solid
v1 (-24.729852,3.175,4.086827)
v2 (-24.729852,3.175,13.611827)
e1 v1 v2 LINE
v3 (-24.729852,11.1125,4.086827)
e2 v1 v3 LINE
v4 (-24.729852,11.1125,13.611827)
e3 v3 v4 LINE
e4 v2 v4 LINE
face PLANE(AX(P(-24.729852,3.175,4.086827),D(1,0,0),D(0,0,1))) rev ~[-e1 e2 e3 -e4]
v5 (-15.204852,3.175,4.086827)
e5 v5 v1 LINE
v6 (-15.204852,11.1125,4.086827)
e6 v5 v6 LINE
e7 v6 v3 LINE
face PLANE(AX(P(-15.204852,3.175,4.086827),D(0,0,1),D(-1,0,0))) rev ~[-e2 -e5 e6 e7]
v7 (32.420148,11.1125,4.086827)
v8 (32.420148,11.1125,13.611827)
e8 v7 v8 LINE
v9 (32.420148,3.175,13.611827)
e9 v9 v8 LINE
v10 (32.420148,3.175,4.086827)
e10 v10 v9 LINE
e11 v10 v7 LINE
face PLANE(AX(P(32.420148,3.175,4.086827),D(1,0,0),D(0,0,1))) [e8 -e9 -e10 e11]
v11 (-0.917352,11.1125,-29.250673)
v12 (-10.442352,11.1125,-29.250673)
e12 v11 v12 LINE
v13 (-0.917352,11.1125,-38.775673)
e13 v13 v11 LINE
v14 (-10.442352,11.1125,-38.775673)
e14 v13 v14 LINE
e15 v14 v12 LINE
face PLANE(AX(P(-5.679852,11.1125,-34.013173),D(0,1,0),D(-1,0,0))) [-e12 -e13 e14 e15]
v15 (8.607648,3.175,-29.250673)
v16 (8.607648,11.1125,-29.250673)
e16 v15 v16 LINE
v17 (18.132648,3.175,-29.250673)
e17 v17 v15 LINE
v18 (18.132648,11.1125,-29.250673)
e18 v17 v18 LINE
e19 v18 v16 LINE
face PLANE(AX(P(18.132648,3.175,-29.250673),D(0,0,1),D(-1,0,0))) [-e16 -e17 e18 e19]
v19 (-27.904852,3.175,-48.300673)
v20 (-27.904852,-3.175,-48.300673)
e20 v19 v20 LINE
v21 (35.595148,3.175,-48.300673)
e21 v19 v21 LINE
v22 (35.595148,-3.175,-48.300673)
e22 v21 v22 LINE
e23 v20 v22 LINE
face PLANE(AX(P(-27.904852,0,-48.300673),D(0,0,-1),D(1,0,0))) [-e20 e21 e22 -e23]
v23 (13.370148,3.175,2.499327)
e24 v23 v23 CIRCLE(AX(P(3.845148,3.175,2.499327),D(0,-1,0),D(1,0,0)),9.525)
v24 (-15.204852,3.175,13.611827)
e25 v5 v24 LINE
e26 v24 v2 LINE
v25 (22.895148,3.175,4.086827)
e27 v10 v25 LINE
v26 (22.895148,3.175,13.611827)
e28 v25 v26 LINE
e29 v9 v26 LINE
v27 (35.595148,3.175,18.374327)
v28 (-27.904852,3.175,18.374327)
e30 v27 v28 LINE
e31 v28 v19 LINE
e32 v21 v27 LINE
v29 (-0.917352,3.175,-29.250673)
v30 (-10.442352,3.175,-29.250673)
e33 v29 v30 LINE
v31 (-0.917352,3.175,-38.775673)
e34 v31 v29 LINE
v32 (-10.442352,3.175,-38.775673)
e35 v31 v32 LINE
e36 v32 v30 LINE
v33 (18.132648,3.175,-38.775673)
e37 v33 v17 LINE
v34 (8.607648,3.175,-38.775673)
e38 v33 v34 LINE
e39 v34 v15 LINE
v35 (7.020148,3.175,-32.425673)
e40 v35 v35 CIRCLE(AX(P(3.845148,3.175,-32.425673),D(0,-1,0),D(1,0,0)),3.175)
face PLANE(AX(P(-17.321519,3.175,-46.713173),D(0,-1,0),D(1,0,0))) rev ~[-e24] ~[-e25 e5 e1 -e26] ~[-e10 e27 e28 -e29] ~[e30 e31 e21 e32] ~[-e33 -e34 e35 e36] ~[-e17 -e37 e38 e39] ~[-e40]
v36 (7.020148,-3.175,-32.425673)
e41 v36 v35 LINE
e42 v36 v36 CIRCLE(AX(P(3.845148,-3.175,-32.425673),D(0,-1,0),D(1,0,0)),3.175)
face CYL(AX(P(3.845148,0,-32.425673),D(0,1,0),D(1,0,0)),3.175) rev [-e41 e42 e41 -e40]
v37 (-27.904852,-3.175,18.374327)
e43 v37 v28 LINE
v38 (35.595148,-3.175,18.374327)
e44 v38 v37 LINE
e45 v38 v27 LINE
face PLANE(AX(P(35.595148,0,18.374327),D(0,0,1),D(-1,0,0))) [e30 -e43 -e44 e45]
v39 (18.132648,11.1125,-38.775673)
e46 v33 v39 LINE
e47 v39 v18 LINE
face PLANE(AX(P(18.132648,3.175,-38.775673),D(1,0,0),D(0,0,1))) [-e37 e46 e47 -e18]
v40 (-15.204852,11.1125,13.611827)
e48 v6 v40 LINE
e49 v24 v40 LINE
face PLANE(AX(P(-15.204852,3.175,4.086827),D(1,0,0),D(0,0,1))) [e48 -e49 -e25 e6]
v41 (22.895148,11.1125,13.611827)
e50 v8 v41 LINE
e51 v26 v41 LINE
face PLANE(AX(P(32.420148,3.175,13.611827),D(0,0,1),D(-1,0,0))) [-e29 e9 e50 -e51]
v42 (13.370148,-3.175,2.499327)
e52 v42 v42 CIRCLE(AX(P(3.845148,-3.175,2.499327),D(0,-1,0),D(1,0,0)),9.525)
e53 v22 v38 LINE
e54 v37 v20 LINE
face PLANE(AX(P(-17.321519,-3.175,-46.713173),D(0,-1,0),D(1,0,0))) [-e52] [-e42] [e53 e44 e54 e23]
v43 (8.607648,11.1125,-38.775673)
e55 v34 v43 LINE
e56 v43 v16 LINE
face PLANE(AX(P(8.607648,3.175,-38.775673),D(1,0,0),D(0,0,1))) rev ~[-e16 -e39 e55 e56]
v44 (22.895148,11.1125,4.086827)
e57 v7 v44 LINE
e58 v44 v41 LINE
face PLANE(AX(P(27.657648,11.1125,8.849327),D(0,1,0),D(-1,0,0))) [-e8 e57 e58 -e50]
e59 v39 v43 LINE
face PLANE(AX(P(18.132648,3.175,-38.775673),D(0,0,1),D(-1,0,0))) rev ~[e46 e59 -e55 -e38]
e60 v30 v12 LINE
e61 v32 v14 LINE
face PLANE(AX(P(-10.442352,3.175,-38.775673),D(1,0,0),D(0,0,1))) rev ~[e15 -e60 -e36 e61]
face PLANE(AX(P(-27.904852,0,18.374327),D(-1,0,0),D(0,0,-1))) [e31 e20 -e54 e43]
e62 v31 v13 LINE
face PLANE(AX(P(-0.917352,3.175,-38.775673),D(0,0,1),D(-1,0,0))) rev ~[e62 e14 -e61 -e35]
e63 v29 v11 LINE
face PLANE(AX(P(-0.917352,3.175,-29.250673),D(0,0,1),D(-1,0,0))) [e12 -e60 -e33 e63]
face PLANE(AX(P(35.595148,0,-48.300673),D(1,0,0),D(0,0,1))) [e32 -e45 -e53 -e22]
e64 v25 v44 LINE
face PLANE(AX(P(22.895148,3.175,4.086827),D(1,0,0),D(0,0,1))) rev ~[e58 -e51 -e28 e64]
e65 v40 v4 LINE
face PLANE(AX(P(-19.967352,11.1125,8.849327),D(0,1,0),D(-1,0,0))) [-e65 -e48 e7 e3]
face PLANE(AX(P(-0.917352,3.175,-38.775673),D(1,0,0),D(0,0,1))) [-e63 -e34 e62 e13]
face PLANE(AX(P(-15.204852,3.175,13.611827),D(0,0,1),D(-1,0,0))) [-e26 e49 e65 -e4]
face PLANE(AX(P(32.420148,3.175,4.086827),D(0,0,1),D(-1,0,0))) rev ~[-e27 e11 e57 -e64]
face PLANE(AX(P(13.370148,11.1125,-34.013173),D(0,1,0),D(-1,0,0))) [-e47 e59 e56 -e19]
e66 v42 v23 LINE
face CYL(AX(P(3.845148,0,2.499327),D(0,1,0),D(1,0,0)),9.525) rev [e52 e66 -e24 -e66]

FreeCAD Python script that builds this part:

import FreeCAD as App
import Part
import Sketcher

V = App.Vector
Q = App.Units.Quantity


def add_polygon(sketch, points):
    """Adds a closed chain of lines whose ends are joined by coincident constraints."""
    first, n = sketch.GeometryCount, len(points)
    for a, b in zip(points, points[1:] + points[:1]):
        sketch.addGeometry(Part.LineSegment(App.Vector(*a, 0), App.Vector(*b, 0)), False)
    for i in range(n):
        sketch.addConstraint(Sketcher.Constraint("Coincident", first + i, 2, first + (i + 1) % n, 1))

doc = App.newDocument("Part")
body = doc.addObject("PartDesign::Body", "Body")

sketch1 = body.newObject("Sketcher::SketchObject", "Sketch")
sketch1.AttachmentSupport = (doc.getObject("XZ_Plane"), [""])
sketch1.MapMode = "FlatFace"
add_polygon(sketch1, [(-27.9, 18.4), (-27.9, -48.3), (35.6, -48.3), (35.6, 18.4)])
sketch1.addGeometry(Part.Circle(V(3.8, -32.4, 0), V(0, 0, 1), 3.2), False)
sketch1.addGeometry(Part.Circle(V(3.8, 2.5, 0), V(0, 0, 1), 9.5), False)
sketch1.addConstraint([
    Sketcher.Constraint("Vertical", 0),
    Sketcher.Constraint("Horizontal", 1),
    Sketcher.Constraint("Vertical", 2),
    Sketcher.Constraint("Horizontal", 3),
    Sketcher.Constraint("Vertical", 4, 3, 5, 3),
    Sketcher.Constraint("Diameter", 4, Q("0.25 in")),
    Sketcher.Constraint("Diameter", 5, Q("0.75 in")),
    Sketcher.Constraint("DistanceX", 1, 1, 1, 2, Q("2.5 in")),
    Sketcher.Constraint("DistanceY", 0, 2, 5, 3, Q("2 in")),
    Sketcher.Constraint("DistanceY", 4, 3, 2, 2, Q("2 in")),
    Sketcher.Constraint("DistanceY", 0, 2, 0, 1, Q("2.625 in")),
    Sketcher.Constraint("DistanceX", 0, 2, 4, 3, Q("1.25 in")),
    Sketcher.Constraint("DistanceX", -1, 1, 4, 3, Q("3.845148 mm")),
    Sketcher.Constraint("DistanceY", 4, 3, -1, 1, Q("32.425673 mm")),
])
pad1 = body.newObject("PartDesign::Pad", "Pad")
pad1.Profile = sketch1
pad1.Length = Q("0.25 in")
pad1.Midplane = True

sketch2 = body.newObject("Sketcher::SketchObject", "Sketch001")
sketch2.AttachmentSupport = (doc.getObject("XZ_Plane"), [""])
sketch2.MapMode = "FlatFace"
sketch2.AttachmentOffset = App.Placement(V(0, 0, -0.125 * 25.4), App.Rotation())
add_polygon(sketch2, [(-15, 14), (-15, 4), (-25, 4), (-25, 14)])
add_polygon(sketch2, [(32, 14), (32, 4), (23, 4), (23, 14)])
add_polygon(sketch2, [(18, -29), (18, -39), (9, -39), (9, -29)])
add_polygon(sketch2, [(-1, -29), (-1, -39), (-10, -39), (-10, -29)])
sketch2.addConstraint([
    Sketcher.Constraint("Vertical", 0),
    Sketcher.Constraint("Horizontal", 1),
    Sketcher.Constraint("Vertical", 2),
    Sketcher.Constraint("Horizontal", 3),
    Sketcher.Constraint("Vertical", 4),
    Sketcher.Constraint("Horizontal", 5),
    Sketcher.Constraint("Vertical", 6),
    Sketcher.Constraint("Horizontal", 7),
    Sketcher.Constraint("Vertical", 8),
    Sketcher.Constraint("Horizontal", 9),
    Sketcher.Constraint("Vertical", 10),
    Sketcher.Constraint("Horizontal", 11),
    Sketcher.Constraint("Vertical", 12),
    Sketcher.Constraint("Horizontal", 13),
    Sketcher.Constraint("Vertical", 14),
    Sketcher.Constraint("Horizontal", 15),
    Sketcher.Constraint("Horizontal", 1, 2, 4, 2),
    Sketcher.Constraint("Horizontal", 3, 2, 6, 2),
    Sketcher.Constraint("Horizontal", 9, 2, 12, 2),
    Sketcher.Constraint("Horizontal", 11, 2, 14, 2),
    Sketcher.Constraint("Equal", 3, 5),
    Sketcher.Constraint("Equal", 7, 9),
    Sketcher.Constraint("Equal", 11, 13),
    Sketcher.Constraint("Equal", 15, 0),
    Sketcher.Constraint("Equal", 6, 8),
    Sketcher.Constraint("DistanceX", 0, 2, 5, 2, Q("1.5 in")),
    Sketcher.Constraint("DistanceX", 1, 2, 1, 1, Q("0.375 in")),
    Sketcher.Constraint("DistanceX", 12, 2, 8, 2, Q("0.75 in")),
    Sketcher.Constraint("DistanceX", 8, 2, 5, 2, Q("0.1875 in")),
    Sketcher.Constraint("DistanceY", 8, 2, 5, 2, Q("1.6875 in")),
    Sketcher.Constraint("DistanceX", 0, 2, -1, 1, Q("15.204852 mm")),
    Sketcher.Constraint("DistanceY", -1, 1, 0, 2, Q("4.086827 mm")),
])
pad2 = body.newObject("PartDesign::Pad", "Pad001")
pad2.Profile = sketch2
pad2.Length = Q("0.3125 in")
pad2.Reversed = True

doc.recompute()
